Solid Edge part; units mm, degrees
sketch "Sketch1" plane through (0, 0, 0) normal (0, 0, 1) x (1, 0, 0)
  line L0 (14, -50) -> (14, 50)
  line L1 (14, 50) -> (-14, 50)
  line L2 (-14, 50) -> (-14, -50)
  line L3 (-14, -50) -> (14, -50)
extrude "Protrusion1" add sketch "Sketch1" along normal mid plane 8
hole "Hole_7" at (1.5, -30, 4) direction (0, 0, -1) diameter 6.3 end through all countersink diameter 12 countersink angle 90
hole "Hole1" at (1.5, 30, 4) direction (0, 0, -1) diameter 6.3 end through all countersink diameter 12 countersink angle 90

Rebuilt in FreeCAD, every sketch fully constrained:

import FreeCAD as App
import Part
import Sketcher
from FreeCAD import Vector

doc = App.newDocument("Part")
body = doc.addObject("PartDesign::Body", "Body")

# Sketch on XY plane
sketch1 = body.newObject("Sketcher::SketchObject", "Sketch")
sketch1.AttachmentSupport = (doc.getObject("XY_Plane"), [""])
sketch1.MapMode = "FlatFace"
sketch1.addGeometry([
    Part.LineSegment(Vector(-14, -50, 0), Vector(14, -50, 0)),
    Part.LineSegment(Vector(14, -50, 0), Vector(14, 50, 0)),
    Part.LineSegment(Vector(14, 50, 0), Vector(-14, 50, 0)),
    Part.LineSegment(Vector(-14, 50, 0), Vector(-14, -50, 0)),
], False)
sketch1.addConstraint([
    Sketcher.Constraint("Coincident", 0, 2, 1, 1),
    Sketcher.Constraint("Coincident", 1, 2, 2, 1),
    Sketcher.Constraint("Coincident", 2, 2, 3, 1),
    Sketcher.Constraint("Coincident", 3, 2, 0, 1),
    Sketcher.Constraint("Horizontal", 0),
    Sketcher.Constraint("Vertical", 1),
    Sketcher.Constraint("Horizontal", 2),
    Sketcher.Constraint("Vertical", 3),
    Sketcher.Constraint("Symmetric", 0, 2, 2, 2, -1, 1),
    Sketcher.Constraint("DistanceX", 0, 1, 0, 2, 28.0),
    Sketcher.Constraint("DistanceY", 1, 1, 1, 2, 100.0),
])
pad1 = body.newObject("PartDesign::Pad", "Pad")
pad1.Profile = sketch1
pad1.Length = 8
pad1.Midplane = True

# Sketch on XY plane
sketch2 = body.newObject("Sketcher::SketchObject", "Sketch001")
sketch2.AttachmentSupport = (doc.getObject("XY_Plane"), [""])
sketch2.MapMode = "FlatFace"
sketch2.AttachmentOffset = App.Placement(Vector(0, 0, 4), App.Rotation())
sketch2.addGeometry(Part.Circle(Vector(1.5, -30, 0), Vector(0, 0, 1), 3.1), False)
sketch2.addConstraint([
    Sketcher.Constraint("Diameter", 0, 6.3),
    Sketcher.Constraint("DistanceY", 0, 3, -1, 1, 30.0),
    Sketcher.Constraint("DistanceX", -1, 1, 0, 3, 1.5),
])
doc.recompute()
hole = body.newObject("PartDesign::Hole", "Hole")
hole.Profile = sketch2
hole.ThreadType = "None"
hole.Diameter = 6.3
hole.DepthType = "ThroughAll"
hole.HoleCutType = "Countersink"
hole.HoleCutDiameter = 12
hole.HoleCutCountersinkAngle = 90

# Sketch on XY plane
sketch3 = body.newObject("Sketcher::SketchObject", "Sketch002")
sketch3.AttachmentSupport = (doc.getObject("XY_Plane"), [""])
sketch3.MapMode = "FlatFace"
sketch3.AttachmentOffset = App.Placement(Vector(0, 0, 4), App.Rotation())
sketch3.addGeometry(Part.Circle(Vector(1.5, 30, 0), Vector(0, 0, 1), 3.1), False)
sketch3.addConstraint([
    Sketcher.Constraint("Diameter", 0, 6.3),
    Sketcher.Constraint("DistanceY", -1, 1, 0, 3, 30.0),
    Sketcher.Constraint("DistanceX", -1, 1, 0, 3, 1.5),
])
doc.recompute()
hole2 = body.newObject("PartDesign::Hole", "Hole001")
hole2.Profile = sketch3
hole2.ThreadType = "None"
hole2.Diameter = 6.3
hole2.DepthType = "ThroughAll"
hole2.HoleCutType = "Countersink"
hole2.HoleCutDiameter = 12
hole2.HoleCutCountersinkAngle = 90

doc.recompute()
